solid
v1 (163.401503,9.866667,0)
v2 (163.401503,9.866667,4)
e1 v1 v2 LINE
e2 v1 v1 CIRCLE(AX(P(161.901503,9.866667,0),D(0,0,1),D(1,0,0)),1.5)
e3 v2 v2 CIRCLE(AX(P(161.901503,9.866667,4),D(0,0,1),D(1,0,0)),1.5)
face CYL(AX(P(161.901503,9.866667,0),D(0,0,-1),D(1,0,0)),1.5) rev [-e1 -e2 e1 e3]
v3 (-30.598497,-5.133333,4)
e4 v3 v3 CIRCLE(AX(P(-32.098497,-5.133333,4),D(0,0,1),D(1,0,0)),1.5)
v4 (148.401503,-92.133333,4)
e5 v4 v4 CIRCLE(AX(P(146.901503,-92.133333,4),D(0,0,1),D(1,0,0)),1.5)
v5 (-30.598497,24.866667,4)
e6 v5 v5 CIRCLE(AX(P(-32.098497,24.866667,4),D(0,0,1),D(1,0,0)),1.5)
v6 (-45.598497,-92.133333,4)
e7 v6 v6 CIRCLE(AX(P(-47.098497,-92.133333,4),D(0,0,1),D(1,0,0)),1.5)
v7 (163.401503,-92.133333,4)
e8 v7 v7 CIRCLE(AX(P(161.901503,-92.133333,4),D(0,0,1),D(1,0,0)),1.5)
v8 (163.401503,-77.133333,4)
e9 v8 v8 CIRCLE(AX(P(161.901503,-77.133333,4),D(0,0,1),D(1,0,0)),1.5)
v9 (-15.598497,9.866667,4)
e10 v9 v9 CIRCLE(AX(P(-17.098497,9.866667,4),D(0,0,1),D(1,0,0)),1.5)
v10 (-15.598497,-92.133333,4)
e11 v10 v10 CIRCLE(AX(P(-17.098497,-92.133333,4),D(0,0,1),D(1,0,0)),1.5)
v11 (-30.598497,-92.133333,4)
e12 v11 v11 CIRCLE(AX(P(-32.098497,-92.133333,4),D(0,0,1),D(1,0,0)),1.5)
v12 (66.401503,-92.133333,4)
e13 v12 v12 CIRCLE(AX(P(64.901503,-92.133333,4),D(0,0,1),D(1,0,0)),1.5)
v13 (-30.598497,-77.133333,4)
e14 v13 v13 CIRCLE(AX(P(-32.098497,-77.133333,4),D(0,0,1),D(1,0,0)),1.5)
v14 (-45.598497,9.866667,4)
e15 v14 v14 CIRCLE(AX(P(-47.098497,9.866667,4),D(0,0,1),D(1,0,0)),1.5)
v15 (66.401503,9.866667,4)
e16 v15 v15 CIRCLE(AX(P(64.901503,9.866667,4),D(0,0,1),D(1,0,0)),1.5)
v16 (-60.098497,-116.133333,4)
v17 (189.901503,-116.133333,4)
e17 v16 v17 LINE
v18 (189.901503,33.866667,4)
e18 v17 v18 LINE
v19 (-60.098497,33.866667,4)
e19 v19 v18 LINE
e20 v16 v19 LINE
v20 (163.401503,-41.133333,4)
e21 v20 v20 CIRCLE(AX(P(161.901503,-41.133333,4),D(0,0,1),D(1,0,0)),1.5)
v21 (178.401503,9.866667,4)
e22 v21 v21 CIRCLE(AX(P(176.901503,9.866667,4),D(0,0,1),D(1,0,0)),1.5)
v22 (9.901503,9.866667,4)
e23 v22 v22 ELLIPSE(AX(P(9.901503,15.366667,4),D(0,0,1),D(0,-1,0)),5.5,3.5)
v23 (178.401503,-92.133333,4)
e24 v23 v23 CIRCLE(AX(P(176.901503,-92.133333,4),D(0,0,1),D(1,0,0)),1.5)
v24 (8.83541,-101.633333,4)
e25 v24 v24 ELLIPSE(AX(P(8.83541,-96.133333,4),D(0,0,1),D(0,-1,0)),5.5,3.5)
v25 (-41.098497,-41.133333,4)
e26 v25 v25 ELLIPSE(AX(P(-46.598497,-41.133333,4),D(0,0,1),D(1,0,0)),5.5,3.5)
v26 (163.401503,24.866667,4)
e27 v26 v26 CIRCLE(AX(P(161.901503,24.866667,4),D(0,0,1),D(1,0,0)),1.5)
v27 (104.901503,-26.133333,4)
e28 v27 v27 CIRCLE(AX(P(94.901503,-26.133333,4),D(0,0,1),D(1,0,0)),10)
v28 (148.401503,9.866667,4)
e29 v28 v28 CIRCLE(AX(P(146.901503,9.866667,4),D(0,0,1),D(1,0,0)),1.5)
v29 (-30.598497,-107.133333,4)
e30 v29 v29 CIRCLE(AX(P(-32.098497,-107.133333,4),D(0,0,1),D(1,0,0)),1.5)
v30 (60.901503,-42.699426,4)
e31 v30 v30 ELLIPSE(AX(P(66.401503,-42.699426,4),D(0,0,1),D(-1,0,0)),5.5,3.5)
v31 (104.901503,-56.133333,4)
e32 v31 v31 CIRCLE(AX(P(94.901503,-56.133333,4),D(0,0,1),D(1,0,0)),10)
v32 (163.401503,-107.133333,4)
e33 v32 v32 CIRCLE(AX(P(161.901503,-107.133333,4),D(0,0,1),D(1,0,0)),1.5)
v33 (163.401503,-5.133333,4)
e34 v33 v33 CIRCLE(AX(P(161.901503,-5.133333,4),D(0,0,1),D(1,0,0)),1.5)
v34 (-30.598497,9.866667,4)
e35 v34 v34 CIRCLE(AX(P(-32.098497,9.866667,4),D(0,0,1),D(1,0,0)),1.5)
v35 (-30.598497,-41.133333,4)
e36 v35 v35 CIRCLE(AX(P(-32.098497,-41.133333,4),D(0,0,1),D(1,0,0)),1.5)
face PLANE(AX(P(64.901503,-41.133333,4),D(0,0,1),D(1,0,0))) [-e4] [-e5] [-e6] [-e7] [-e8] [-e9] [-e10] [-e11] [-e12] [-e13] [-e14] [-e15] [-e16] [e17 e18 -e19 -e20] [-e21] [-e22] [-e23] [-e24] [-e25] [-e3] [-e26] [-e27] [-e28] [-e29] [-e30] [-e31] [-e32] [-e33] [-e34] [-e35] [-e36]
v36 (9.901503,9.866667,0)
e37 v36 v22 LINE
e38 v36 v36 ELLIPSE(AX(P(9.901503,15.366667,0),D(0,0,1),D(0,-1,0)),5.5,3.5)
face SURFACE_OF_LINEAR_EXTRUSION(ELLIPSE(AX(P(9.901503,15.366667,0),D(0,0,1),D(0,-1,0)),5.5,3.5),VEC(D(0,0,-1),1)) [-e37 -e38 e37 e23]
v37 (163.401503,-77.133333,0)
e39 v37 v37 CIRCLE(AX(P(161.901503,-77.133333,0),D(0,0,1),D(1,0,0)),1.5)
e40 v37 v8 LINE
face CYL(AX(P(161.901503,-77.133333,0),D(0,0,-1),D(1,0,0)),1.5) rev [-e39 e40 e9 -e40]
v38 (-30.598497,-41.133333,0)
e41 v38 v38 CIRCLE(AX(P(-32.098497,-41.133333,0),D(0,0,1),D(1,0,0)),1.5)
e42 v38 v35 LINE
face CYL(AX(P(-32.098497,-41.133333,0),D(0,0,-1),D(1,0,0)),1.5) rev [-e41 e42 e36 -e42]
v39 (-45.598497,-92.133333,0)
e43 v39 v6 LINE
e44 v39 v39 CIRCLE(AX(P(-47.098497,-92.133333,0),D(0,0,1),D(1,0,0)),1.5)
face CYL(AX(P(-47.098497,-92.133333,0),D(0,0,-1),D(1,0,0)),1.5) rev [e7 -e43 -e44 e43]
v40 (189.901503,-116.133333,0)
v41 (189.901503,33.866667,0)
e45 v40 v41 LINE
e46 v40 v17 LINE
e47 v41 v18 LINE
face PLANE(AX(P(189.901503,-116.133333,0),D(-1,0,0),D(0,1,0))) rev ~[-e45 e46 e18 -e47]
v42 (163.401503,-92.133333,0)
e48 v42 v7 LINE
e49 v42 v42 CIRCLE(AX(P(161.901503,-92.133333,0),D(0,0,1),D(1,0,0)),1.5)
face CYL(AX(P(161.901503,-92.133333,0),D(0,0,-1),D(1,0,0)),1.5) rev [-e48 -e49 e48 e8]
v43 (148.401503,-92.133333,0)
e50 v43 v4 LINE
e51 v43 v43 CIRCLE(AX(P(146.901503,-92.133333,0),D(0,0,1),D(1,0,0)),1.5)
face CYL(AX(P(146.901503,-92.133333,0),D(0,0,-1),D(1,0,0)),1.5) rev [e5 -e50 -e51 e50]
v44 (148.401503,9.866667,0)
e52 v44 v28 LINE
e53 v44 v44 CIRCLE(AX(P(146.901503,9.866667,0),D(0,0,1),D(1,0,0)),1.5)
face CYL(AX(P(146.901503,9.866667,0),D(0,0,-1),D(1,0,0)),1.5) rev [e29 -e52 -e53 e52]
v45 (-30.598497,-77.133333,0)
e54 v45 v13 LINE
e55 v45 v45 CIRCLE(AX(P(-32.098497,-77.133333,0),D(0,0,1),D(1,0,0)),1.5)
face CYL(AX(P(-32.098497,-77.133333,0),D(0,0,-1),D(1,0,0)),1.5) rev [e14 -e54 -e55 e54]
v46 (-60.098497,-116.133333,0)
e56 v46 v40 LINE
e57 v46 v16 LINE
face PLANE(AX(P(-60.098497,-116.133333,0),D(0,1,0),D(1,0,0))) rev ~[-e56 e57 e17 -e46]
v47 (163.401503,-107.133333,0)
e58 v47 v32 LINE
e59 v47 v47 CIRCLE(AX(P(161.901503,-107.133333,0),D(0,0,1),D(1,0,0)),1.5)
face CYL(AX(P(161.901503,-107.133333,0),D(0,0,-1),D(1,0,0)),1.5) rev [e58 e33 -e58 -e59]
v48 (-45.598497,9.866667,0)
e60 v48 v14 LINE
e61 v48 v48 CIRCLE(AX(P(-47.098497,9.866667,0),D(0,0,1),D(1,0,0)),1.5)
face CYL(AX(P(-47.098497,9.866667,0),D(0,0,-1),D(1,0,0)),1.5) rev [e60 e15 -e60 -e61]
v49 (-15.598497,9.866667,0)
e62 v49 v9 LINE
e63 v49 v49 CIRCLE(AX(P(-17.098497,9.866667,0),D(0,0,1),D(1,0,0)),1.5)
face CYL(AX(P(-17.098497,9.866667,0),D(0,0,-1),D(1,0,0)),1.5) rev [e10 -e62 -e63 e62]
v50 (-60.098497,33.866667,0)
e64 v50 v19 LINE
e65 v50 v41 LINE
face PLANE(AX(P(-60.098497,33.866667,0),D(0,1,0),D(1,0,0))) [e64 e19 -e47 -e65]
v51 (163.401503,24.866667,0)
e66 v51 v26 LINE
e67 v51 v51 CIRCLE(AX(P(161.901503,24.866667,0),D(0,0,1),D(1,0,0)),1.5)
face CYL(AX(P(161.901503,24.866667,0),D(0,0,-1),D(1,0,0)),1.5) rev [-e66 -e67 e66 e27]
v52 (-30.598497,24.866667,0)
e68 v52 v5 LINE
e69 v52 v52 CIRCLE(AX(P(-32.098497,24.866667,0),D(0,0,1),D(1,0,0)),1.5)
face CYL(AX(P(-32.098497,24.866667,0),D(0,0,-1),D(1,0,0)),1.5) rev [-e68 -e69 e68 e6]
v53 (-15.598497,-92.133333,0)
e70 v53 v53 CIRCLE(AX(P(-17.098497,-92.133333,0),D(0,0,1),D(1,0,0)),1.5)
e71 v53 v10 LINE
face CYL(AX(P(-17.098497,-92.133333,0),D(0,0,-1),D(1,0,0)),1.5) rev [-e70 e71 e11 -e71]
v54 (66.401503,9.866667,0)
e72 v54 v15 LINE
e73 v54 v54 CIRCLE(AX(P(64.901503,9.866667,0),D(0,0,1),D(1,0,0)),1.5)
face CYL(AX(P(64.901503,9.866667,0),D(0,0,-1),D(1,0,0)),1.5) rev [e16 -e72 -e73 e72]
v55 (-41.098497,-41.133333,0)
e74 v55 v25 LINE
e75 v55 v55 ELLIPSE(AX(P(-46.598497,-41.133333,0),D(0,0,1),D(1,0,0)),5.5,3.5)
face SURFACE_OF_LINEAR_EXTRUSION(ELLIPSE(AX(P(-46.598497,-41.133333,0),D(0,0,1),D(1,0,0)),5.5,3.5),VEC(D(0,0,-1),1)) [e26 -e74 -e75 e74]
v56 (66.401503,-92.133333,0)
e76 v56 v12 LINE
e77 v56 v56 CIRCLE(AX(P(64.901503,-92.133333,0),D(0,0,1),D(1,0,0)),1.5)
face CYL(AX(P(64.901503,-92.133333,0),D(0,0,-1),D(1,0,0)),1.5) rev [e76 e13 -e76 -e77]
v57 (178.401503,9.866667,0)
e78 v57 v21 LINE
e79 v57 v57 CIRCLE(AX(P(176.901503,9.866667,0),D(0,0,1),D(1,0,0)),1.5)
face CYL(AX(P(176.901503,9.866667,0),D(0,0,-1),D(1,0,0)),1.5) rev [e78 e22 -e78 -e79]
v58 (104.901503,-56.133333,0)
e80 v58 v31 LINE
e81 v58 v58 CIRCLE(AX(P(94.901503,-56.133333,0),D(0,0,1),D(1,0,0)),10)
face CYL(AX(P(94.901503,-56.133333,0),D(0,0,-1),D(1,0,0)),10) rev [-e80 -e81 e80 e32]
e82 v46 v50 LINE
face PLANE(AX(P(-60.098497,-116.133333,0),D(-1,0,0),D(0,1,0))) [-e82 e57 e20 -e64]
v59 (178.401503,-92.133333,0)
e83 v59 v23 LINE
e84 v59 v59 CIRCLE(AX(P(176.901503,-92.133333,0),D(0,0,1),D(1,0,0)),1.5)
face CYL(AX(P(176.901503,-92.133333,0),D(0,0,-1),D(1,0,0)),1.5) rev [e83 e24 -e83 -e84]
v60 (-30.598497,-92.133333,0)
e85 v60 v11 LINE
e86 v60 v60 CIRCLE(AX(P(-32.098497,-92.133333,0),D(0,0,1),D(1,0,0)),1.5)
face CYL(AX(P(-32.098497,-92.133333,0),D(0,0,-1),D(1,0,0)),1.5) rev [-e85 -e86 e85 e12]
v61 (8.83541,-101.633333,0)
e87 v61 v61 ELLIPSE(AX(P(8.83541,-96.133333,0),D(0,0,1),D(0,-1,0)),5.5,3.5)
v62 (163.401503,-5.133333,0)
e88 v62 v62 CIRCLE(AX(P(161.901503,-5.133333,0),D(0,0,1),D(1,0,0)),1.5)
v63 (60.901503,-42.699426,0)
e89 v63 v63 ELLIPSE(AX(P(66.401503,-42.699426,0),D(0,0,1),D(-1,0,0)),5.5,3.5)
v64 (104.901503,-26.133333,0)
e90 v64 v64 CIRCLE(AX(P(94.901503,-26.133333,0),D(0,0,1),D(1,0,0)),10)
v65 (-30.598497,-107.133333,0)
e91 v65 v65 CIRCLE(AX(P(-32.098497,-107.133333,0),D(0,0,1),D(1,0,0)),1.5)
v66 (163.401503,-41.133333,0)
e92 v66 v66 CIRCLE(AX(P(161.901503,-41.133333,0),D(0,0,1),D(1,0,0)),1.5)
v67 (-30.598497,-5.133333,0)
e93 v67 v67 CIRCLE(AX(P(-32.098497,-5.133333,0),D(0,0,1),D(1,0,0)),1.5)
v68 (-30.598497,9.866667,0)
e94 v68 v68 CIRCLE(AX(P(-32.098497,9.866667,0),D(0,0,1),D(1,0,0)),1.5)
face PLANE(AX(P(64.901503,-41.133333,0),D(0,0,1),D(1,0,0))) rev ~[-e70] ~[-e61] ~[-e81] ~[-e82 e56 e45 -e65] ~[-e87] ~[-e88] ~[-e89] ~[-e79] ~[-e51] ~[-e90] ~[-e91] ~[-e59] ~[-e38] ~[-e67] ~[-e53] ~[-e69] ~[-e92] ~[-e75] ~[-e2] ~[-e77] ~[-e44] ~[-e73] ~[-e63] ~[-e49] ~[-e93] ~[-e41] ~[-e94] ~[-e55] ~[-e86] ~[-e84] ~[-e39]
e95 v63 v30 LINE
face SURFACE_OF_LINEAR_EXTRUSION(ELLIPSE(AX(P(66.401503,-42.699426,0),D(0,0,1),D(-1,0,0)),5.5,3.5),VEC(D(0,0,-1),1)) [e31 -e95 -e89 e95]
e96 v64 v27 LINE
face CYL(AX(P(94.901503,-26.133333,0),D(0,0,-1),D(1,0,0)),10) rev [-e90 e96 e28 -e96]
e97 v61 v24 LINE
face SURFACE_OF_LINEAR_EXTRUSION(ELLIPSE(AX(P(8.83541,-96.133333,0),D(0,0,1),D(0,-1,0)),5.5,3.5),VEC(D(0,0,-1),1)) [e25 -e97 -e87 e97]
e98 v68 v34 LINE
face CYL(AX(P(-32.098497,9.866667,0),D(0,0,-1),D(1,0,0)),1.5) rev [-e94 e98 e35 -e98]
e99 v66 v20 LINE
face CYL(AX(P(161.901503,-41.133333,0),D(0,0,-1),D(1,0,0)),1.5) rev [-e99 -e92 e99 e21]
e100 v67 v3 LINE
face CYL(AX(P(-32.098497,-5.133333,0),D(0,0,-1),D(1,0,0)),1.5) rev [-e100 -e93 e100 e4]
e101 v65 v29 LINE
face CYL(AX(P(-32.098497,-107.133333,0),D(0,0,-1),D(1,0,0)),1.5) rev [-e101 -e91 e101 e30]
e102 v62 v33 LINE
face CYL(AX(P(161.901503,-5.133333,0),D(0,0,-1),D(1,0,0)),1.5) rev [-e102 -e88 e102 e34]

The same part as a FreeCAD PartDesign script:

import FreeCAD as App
import Part
import Sketcher
from FreeCAD import Vector
Q = App.Units.Quantity


def add_polygon(sketch, points):
    """Adds a closed chain of lines whose ends are joined by coincident constraints."""
    first, n = sketch.GeometryCount, len(points)
    for a, b in zip(points, points[1:] + points[:1]):
        sketch.addGeometry(Part.LineSegment(App.Vector(*a, 0), App.Vector(*b, 0)), False)
    for i in range(n):
        sketch.addConstraint(Sketcher.Constraint("Coincident", first + i, 2, first + (i + 1) % n, 1))

doc = App.newDocument("Part")
params = doc.addObject("Spreadsheet::Sheet", "Params")
for row, (alias, value) in enumerate([
    ("sketch1_diameter", "3 mm"),
    ("sketch1_diameter2", "20 mm"),
    ("sketch1_width", "250 mm"),
    ("sketch1_height", "150 mm"),
    ("pad1_length", "4 mm"),
], start=1):
    params.set(f"A{row}", alias)
    params.set(f"B{row}", "=" + value)
    params.setAlias(f"B{row}", alias)

body = doc.addObject("PartDesign::Body", "Body")

sketch1 = body.newObject("Sketcher::SketchObject", "Sketch")
sketch1.AttachmentSupport = (doc.getObject("XY_Plane"), [""])
sketch1.MapMode = "FlatFace"
add_polygon(sketch1, [(-60.098497, 33.866667), (-60.098497, -116.133333), (189.901503, -116.133333), (189.901503, 33.866667)])
sketch1.addGeometry(Part.Circle(Vector(-32.098497, -107.133333, 0), Vector(0, 0, 1), 1.5), False)
sketch1.addGeometry(Part.Circle(Vector(-47.098497, -92.133333, 0), Vector(0, 0, 1), 1.5), False)
sketch1.addGeometry(Part.Circle(Vector(-32.098497, -92.133333, 0), Vector(0, 0, 1), 1.5), False)
sketch1.addGeometry(Part.Circle(Vector(-17.098497, -92.133333, 0), Vector(0, 0, 1), 1.5), False)
sketch1.addGeometry(Part.Circle(Vector(-32.098497, -77.133333, 0), Vector(0, 0, 1), 1.5), False)
sketch1.addGeometry(Part.Ellipse(Vector(8.83541, -101.633333, 0), Vector(12.33541, -96.133333, 0), Vector(8.83541, -96.133333, 0)), False)
sketch1.addGeometry(Part.Circle(Vector(64.901503, -92.133333, 0), Vector(0, 0, 1), 1.5), False)
sketch1.addGeometry(Part.Circle(Vector(146.901503, -92.133333, 0), Vector(0, 0, 1), 1.5), False)
sketch1.addGeometry(Part.Circle(Vector(161.901503, -107.133333, 0), Vector(0, 0, 1), 1.5), False)
sketch1.addGeometry(Part.Circle(Vector(161.901503, -92.133333, 0), Vector(0, 0, 1), 1.5), False)
sketch1.addGeometry(Part.Circle(Vector(176.901503, -92.133333, 0), Vector(0, 0, 1), 1.5), False)
sketch1.addGeometry(Part.Circle(Vector(161.901503, -77.133333, 0), Vector(0, 0, 1), 1.5), False)
sketch1.addGeometry(Part.Ellipse(Vector(60.901503, -42.699426, 0), Vector(66.401503, -46.199426, 0), Vector(66.401503, -42.699426, 0)), False)
sketch1.addGeometry(Part.Circle(Vector(94.901503, -56.133333, 0), Vector(0, 0, 1), 10), False)
sketch1.addGeometry(Part.Ellipse(Vector(-41.098497, -41.133333, 0), Vector(-46.598497, -37.633333, 0), Vector(-46.598497, -41.133333, 0)), False)
sketch1.addGeometry(Part.Circle(Vector(-32.098497, -41.133333, 0), Vector(0, 0, 1), 1.5), False)
sketch1.addGeometry(Part.Circle(Vector(-32.098497, -5.133333, 0), Vector(0, 0, 1), 1.5), False)
sketch1.addGeometry(Part.Circle(Vector(-47.098497, 9.866667, 0), Vector(0, 0, 1), 1.5), False)
sketch1.addGeometry(Part.Circle(Vector(-32.098497, 9.866667, 0), Vector(0, 0, 1), 1.5), False)
sketch1.addGeometry(Part.Circle(Vector(-32.098497, 24.866667, 0), Vector(0, 0, 1), 1.5), False)
sketch1.addGeometry(Part.Circle(Vector(-17.098497, 9.866667, 0), Vector(0, 0, 1), 1.5), False)
sketch1.addGeometry(Part.Ellipse(Vector(9.901503, 9.866667, 0), Vector(13.401503, 15.366667, 0), Vector(9.901503, 15.366667, 0)), False)
sketch1.addGeometry(Part.Circle(Vector(94.901503, -26.133333, 0), Vector(0, 0, 1), 10), False)
sketch1.addGeometry(Part.Circle(Vector(161.901503, -41.133333, 0), Vector(0, 0, 1), 1.5), False)
sketch1.addGeometry(Part.Circle(Vector(64.901503, 9.866667, 0), Vector(0, 0, 1), 1.5), False)
sketch1.addGeometry(Part.Circle(Vector(161.901503, -5.133333, 0), Vector(0, 0, 1), 1.5), False)
sketch1.addGeometry(Part.Circle(Vector(146.901503, 9.866667, 0), Vector(0, 0, 1), 1.5), False)
sketch1.addGeometry(Part.Circle(Vector(161.901503, 9.866667, 0), Vector(0, 0, 1), 1.5), False)
sketch1.addGeometry(Part.Circle(Vector(176.901503, 9.866667, 0), Vector(0, 0, 1), 1.5), False)
sketch1.addGeometry(Part.Circle(Vector(161.901503, 24.866667, 0), Vector(0, 0, 1), 1.5), False)
sketch1.addConstraint(Sketcher.Constraint("Block", 9))
sketch1.addConstraint(Sketcher.Constraint("Block", 16))
sketch1.addConstraint(Sketcher.Constraint("Block", 18))
sketch1.addConstraint(Sketcher.Constraint("Block", 25))
sketch1.addConstraint(Sketcher.Constraint("Vertical", 0))
sketch1.addConstraint(Sketcher.Constraint("Horizontal", 1))
sketch1.addConstraint(Sketcher.Constraint("Vertical", 2))
sketch1.addConstraint(Sketcher.Constraint("Horizontal", 3))
sketch1.addConstraint(Sketcher.Constraint("Equal", 4, 5))
sketch1.addConstraint(Sketcher.Constraint("Equal", 5, 6))
sketch1.addConstraint(Sketcher.Constraint("Equal", 6, 7))
sketch1.addConstraint(Sketcher.Constraint("Equal", 7, 8))
sketch1.addConstraint(Sketcher.Constraint("Equal", 8, 10))
sketch1.addConstraint(Sketcher.Constraint("Equal", 10, 11))
sketch1.addConstraint(Sketcher.Constraint("Equal", 11, 12))
sketch1.addConstraint(Sketcher.Constraint("Equal", 12, 13))
sketch1.addConstraint(Sketcher.Constraint("Equal", 13, 14))
sketch1.addConstraint(Sketcher.Constraint("Equal", 14, 15))
sketch1.addConstraint(Sketcher.Constraint("Equal", 15, 19))
sketch1.addConstraint(Sketcher.Constraint("Equal", 19, 20))
sketch1.addConstraint(Sketcher.Constraint("Equal", 20, 21))
sketch1.addConstraint(Sketcher.Constraint("Equal", 21, 22))
sketch1.addConstraint(Sketcher.Constraint("Equal", 22, 23))
sketch1.addConstraint(Sketcher.Constraint("Equal", 23, 24))
sketch1.addConstraint(Sketcher.Constraint("Equal", 17, 26))
sketch1.addConstraint(Sketcher.Constraint("Equal", 24, 27))
sketch1.addConstraint(Sketcher.Constraint("Equal", 27, 28))
sketch1.addConstraint(Sketcher.Constraint("Equal", 28, 29))
sketch1.addConstraint(Sketcher.Constraint("Equal", 29, 30))
sketch1.addConstraint(Sketcher.Constraint("Equal", 30, 31))
sketch1.addConstraint(Sketcher.Constraint("Equal", 31, 32))
sketch1.addConstraint(Sketcher.Constraint("Equal", 32, 33))
sketch1.addConstraint(Sketcher.Constraint("Horizontal", 5, 3, 6, 3))
sketch1.addConstraint(Sketcher.Constraint("Horizontal", 6, 3, 7, 3))
sketch1.addConstraint(Sketcher.Constraint("Horizontal", 7, 3, 10, 3))
sketch1.addConstraint(Sketcher.Constraint("Horizontal", 10, 3, 11, 3))
sketch1.addConstraint(Sketcher.Constraint("Horizontal", 4, 3, 12, 3))
sketch1.addConstraint(Sketcher.Constraint("Horizontal", 11, 3, 13, 3))
sketch1.addConstraint(Sketcher.Constraint("Horizontal", 13, 3, 14, 3))
sketch1.addConstraint(Sketcher.Constraint("Horizontal", 8, 3, 15, 3))
sketch1.addConstraint(Sketcher.Constraint("Horizontal", 21, 3, 22, 3))
sketch1.addConstraint(Sketcher.Constraint("Horizontal", 22, 3, 24, 3))
sketch1.addConstraint(Sketcher.Constraint("Horizontal", 19, 3, 27, 3))
sketch1.addConstraint(Sketcher.Constraint("Horizontal", 24, 3, 28, 3))
sketch1.addConstraint(Sketcher.Constraint("Horizontal", 20, 3, 29, 3))
sketch1.addConstraint(Sketcher.Constraint("Horizontal", 28, 3, 30, 3))
sketch1.addConstraint(Sketcher.Constraint("Horizontal", 30, 3, 31, 3))
sketch1.addConstraint(Sketcher.Constraint("Horizontal", 31, 3, 32, 3))
sketch1.addConstraint(Sketcher.Constraint("Horizontal", 23, 3, 33, 3))
sketch1.addConstraint(Sketcher.Constraint("Vertical", 4, 3, 6, 3))
sketch1.addConstraint(Sketcher.Constraint("Vertical", 6, 3, 8, 3))
sketch1.addConstraint(Sketcher.Constraint("Vertical", 12, 3, 13, 3))
sketch1.addConstraint(Sketcher.Constraint("Vertical", 13, 3, 15, 3))
sketch1.addConstraint(Sketcher.Constraint("Vertical", 8, 3, 19, 3))
sketch1.addConstraint(Sketcher.Constraint("Vertical", 19, 3, 20, 3))
sketch1.addConstraint(Sketcher.Constraint("Vertical", 5, 3, 21, 3))
sketch1.addConstraint(Sketcher.Constraint("Vertical", 20, 3, 22, 3))
sketch1.addConstraint(Sketcher.Constraint("Vertical", 22, 3, 23, 3))
sketch1.addConstraint(Sketcher.Constraint("Vertical", 7, 3, 24, 3))
sketch1.addConstraint(Sketcher.Constraint("Vertical", 17, 3, 26, 3))
sketch1.addConstraint(Sketcher.Constraint("Vertical", 15, 3, 27, 3))
sketch1.addConstraint(Sketcher.Constraint("Vertical", 10, 3, 28, 3))
sketch1.addConstraint(Sketcher.Constraint("Vertical", 27, 3, 29, 3))
sketch1.addConstraint(Sketcher.Constraint("Vertical", 11, 3, 30, 3))
sketch1.addConstraint(Sketcher.Constraint("Vertical", 29, 3, 31, 3))
sketch1.addConstraint(Sketcher.Constraint("Vertical", 14, 3, 32, 3))
sketch1.addConstraint(Sketcher.Constraint("Vertical", 31, 3, 33, 3))
sketch1.addConstraint(Sketcher.Constraint("Diameter", 4, Q("3 mm")))
sketch1.addConstraint(Sketcher.Constraint("Diameter", 17, Q("20 mm")))
sketch1.addConstraint(Sketcher.Constraint("DistanceX", 1, 1, 1, 2, Q("250 mm")))
sketch1.addConstraint(Sketcher.Constraint("DistanceY", 0, 2, 0, 1, Q("150 mm")))
sketch1.addConstraint(Sketcher.Constraint("DistanceX", 5, 3, 4, 3, Q("15 mm")))
sketch1.addConstraint(Sketcher.Constraint("DistanceY", 4, 3, 5, 3, Q("15 mm")))
sketch1.addConstraint(Sketcher.Constraint("DistanceX", 6, 3, 7, 3, Q("15 mm")))
sketch1.addConstraint(Sketcher.Constraint("DistanceY", 6, 3, 8, 3, Q("15 mm")))
sketch1.addConstraint(Sketcher.Constraint("DistanceX", 7, 3, 10, 3, Q("82 mm")))
sketch1.addConstraint(Sketcher.Constraint("DistanceX", 10, 3, 11, 3, Q("82 mm")))
sketch1.addConstraint(Sketcher.Constraint("DistanceX", 11, 3, 12, 3, Q("15 mm")))
sketch1.addConstraint(Sketcher.Constraint("DistanceX", 13, 3, 14, 3, Q("15 mm")))
sketch1.addConstraint(Sketcher.Constraint("DistanceX", 10, 3, 17, 3, Q("30 mm")))
sketch1.addConstraint(Sketcher.Constraint("DistanceY", 10, 3, 17, 3, Q("36 mm")))
sketch1.addConstraint(Sketcher.Constraint("DistanceY", 8, 3, 19, 3, Q("36 mm")))
sketch1.addConstraint(Sketcher.Constraint("DistanceY", 19, 3, 20, 3, Q("36 mm")))
sketch1.addConstraint(Sketcher.Constraint("DistanceY", 20, 3, 21, 3, Q("15 mm")))
sketch1.addConstraint(Sketcher.Constraint("DistanceY", 22, 3, 23, 3, Q("15 mm")))
sketch1.addConstraint(Sketcher.Constraint("DistanceY", 17, 3, 26, 3, Q("30 mm")))
sketch1.addConstraint(Sketcher.Constraint("DistanceX", 0, 2, 5, 3, Q("13 mm")))
sketch1.addConstraint(Sketcher.Constraint("DistanceY", 0, 2, 5, 3, Q("24 mm")))
sketch1.addConstraint(Sketcher.Constraint("DistanceX", 4, 3, -1, 1, Q("32.098497 mm")))
sketch1.addConstraint(Sketcher.Constraint("DistanceY", 4, 3, -1, 1, Q("107.133333 mm")))
sketch1.setExpression("Constraints[71]", "Params.sketch1_diameter")
sketch1.setExpression("Constraints[72]", "Params.sketch1_diameter2")
sketch1.setExpression("Constraints[73]", "Params.sketch1_width")
sketch1.setExpression("Constraints[74]", "Params.sketch1_height")
pad1 = body.newObject("PartDesign::Pad", "Pad")
pad1.Profile = sketch1
pad1.setExpression("Length", "Params.pad1_length")

doc.recompute()
